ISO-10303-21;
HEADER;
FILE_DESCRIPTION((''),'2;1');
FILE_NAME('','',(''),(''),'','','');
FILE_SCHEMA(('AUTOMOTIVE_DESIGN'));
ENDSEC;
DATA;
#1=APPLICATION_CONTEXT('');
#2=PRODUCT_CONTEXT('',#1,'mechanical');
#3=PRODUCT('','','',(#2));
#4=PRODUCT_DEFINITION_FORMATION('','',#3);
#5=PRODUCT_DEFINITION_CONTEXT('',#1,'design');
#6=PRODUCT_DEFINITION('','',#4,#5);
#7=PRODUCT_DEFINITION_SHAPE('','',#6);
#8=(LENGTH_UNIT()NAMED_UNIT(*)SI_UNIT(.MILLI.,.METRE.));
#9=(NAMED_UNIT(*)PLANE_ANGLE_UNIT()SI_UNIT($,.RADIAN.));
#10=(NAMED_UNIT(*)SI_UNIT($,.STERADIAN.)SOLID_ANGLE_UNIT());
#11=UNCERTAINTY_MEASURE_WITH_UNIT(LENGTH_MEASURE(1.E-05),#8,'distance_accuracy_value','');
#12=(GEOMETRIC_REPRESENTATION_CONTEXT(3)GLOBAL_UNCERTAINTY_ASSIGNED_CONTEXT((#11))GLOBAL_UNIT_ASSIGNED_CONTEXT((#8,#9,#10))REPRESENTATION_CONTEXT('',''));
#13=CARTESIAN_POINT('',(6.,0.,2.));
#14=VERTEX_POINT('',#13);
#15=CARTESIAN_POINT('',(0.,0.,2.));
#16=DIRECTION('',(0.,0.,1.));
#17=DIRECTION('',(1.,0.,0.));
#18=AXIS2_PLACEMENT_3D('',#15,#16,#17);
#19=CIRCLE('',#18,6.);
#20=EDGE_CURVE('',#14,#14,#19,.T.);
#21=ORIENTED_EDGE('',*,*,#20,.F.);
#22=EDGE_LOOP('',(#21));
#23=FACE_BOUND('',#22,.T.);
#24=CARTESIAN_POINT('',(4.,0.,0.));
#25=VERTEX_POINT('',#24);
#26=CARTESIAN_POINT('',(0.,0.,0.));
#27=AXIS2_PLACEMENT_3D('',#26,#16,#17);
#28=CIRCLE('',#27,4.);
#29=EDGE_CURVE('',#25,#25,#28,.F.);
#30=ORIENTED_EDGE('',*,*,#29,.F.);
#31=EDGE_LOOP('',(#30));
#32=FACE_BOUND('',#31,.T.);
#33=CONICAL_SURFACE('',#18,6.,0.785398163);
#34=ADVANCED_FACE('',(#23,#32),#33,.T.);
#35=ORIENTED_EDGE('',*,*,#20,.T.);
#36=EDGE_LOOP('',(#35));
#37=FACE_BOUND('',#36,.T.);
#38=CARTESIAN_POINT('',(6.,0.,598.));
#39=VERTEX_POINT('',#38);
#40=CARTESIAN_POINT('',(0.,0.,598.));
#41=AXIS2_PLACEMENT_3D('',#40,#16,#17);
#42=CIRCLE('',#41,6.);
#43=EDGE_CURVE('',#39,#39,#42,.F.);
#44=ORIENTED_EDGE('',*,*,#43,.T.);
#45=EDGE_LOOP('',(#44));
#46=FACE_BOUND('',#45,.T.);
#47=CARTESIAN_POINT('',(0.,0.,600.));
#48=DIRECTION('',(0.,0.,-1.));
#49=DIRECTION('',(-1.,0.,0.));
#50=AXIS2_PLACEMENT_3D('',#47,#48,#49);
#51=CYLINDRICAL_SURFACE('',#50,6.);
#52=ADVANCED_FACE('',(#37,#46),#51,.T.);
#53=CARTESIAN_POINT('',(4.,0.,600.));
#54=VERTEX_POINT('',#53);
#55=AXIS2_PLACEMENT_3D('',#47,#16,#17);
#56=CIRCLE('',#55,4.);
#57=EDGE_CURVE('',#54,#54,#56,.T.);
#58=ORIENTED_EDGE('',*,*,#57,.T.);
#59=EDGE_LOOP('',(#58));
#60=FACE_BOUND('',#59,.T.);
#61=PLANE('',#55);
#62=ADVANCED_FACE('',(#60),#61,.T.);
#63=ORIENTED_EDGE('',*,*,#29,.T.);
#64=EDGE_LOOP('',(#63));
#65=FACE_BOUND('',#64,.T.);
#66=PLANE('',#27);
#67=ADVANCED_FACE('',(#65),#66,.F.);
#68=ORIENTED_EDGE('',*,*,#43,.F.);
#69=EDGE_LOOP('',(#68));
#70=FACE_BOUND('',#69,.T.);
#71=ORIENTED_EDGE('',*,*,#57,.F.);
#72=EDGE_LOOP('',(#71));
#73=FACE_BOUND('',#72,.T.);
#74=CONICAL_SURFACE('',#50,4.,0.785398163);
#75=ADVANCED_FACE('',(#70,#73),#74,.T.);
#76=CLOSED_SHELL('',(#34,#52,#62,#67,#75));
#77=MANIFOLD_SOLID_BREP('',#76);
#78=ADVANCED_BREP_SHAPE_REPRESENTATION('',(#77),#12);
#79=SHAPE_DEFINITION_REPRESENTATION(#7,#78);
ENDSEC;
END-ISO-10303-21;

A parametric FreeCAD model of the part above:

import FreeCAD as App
import Part
import Sketcher
from FreeCAD import Vector


def edges_at(feature, points):
    """Names of the edges that pass closest to the given points."""
    edges = feature.Shape.Edges
    near = lambda p: min(range(len(edges)), key=lambda i: edges[i].distToShape(Part.Vertex(*p))[0])
    return sorted({f"Edge{near(p) + 1}" for p in points})

doc = App.newDocument("Part")
body = doc.addObject("PartDesign::Body", "Body")

# Sketch on XY plane
sketch1 = body.newObject("Sketcher::SketchObject", "Sketch")
sketch1.AttachmentSupport = (doc.getObject("XY_Plane"), [""])
sketch1.MapMode = "FlatFace"
sketch1.addGeometry(Part.Circle(Vector(0, 0, 0), Vector(0, 0, 1), 6), False)
sketch1.addConstraint(Sketcher.Constraint("Coincident", 0, 3, -1, 1))
sketch1.addConstraint(Sketcher.Constraint("Diameter", 0, 12.0))
pad1 = body.newObject("PartDesign::Pad", "Pad")
pad1.Profile = sketch1
pad1.Length = 600
doc.recompute()

chamfer = body.newObject("PartDesign::Chamfer", "Chamfer")
chamfer.Base = (pad1, edges_at(pad1, [(-6, 0, 0), (-6, 0, 600)]))
chamfer.Size = 2

doc.recompute()
